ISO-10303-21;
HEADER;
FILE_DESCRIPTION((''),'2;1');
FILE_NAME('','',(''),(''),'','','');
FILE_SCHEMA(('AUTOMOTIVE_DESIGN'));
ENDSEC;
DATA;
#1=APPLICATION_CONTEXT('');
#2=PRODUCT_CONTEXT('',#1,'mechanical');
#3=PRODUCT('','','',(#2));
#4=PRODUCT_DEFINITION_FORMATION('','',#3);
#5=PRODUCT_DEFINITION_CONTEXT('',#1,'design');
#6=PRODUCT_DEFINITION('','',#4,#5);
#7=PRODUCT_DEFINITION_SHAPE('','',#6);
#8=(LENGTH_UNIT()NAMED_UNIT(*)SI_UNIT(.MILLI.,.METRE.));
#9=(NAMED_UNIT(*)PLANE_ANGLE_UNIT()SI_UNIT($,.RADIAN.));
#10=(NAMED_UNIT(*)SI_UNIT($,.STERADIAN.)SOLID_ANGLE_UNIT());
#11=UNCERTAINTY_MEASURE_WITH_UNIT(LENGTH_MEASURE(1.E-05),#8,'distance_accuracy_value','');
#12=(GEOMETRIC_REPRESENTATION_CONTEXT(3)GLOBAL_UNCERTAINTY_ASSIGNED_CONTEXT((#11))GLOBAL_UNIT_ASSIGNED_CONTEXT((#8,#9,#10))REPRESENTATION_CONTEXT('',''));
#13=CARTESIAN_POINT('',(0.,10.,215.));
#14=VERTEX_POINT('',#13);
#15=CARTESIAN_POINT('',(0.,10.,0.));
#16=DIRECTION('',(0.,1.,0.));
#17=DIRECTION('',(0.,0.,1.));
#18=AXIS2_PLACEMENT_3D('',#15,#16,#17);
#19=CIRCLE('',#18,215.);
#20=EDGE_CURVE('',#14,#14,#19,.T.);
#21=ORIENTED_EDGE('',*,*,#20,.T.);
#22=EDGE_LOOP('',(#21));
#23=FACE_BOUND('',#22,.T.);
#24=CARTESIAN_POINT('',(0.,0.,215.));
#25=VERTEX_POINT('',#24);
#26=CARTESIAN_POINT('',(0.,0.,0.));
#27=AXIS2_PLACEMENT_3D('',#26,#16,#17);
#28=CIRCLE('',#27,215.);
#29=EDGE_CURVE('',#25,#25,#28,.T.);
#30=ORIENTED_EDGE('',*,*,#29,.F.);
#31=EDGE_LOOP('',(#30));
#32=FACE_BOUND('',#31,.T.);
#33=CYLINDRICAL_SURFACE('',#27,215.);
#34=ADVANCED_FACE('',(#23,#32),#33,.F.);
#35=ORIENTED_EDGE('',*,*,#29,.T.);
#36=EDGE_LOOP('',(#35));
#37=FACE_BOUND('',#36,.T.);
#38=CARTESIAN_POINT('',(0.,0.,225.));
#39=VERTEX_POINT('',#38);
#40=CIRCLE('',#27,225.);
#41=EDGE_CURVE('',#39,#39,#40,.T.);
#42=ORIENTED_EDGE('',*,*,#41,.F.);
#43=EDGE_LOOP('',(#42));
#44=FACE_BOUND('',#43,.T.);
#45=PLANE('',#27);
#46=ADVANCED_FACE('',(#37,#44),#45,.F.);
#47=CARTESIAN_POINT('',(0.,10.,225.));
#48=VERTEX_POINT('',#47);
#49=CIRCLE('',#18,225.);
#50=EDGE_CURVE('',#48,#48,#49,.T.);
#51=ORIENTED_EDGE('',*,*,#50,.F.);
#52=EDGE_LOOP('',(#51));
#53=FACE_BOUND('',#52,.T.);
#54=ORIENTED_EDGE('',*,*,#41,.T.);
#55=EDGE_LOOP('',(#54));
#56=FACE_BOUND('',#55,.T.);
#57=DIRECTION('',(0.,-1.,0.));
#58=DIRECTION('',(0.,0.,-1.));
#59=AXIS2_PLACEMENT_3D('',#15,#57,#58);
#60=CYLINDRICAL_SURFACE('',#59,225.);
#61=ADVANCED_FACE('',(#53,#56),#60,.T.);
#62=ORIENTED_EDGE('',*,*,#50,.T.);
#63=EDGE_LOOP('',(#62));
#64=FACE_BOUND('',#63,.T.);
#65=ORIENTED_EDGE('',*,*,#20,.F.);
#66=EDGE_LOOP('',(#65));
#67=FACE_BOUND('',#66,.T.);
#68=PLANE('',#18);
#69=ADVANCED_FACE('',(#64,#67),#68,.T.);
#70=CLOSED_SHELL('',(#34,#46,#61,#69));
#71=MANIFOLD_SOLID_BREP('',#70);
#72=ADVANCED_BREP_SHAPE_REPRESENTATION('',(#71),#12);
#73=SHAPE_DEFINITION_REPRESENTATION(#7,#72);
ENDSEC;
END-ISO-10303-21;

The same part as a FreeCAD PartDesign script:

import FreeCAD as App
import Part
import Sketcher

V = App.Vector
Q = App.Units.Quantity

doc = App.newDocument("Part")
body = doc.addObject("PartDesign::Body", "Body")

sketch1 = body.newObject("Sketcher::SketchObject", "Sketch")
sketch1.AttachmentSupport = (doc.getObject("XZ_Plane"), [""])
sketch1.MapMode = "FlatFace"
sketch1.addGeometry(Part.Circle(V(0, 0, 0), V(0, 0, 1), 225), False)
sketch1.addConstraint(Sketcher.Constraint("Coincident", 0, 3, -1, 1))
sketch1.addConstraint(Sketcher.Constraint("Diameter", 0, Q("450 mm")))
pad1 = body.newObject("PartDesign::Pad", "Pad")
pad1.Profile = sketch1
pad1.Length = 10
pad1.Reversed = True

sketch2 = body.newObject("Sketcher::SketchObject", "Sketch001")
sketch2.AttachmentSupport = (doc.getObject("XZ_Plane"), [""])
sketch2.MapMode = "FlatFace"
sketch2.AttachmentOffset = App.Placement(V(0, 0, -10), App.Rotation())
sketch2.addGeometry(Part.Circle(V(0, 0, 0), V(0, 0, 1), 215), False)
sketch2.addConstraint(Sketcher.Constraint("Coincident", 0, 3, -1, 1))
sketch2.addConstraint(Sketcher.Constraint("Diameter", 0, Q("430 mm")))
pocket1 = body.newObject("PartDesign::Pocket", "Pocket")
pocket1.Profile = sketch2
pocket1.Type = "ThroughAll"
pocket1.Reversed = True

doc.recompute()
